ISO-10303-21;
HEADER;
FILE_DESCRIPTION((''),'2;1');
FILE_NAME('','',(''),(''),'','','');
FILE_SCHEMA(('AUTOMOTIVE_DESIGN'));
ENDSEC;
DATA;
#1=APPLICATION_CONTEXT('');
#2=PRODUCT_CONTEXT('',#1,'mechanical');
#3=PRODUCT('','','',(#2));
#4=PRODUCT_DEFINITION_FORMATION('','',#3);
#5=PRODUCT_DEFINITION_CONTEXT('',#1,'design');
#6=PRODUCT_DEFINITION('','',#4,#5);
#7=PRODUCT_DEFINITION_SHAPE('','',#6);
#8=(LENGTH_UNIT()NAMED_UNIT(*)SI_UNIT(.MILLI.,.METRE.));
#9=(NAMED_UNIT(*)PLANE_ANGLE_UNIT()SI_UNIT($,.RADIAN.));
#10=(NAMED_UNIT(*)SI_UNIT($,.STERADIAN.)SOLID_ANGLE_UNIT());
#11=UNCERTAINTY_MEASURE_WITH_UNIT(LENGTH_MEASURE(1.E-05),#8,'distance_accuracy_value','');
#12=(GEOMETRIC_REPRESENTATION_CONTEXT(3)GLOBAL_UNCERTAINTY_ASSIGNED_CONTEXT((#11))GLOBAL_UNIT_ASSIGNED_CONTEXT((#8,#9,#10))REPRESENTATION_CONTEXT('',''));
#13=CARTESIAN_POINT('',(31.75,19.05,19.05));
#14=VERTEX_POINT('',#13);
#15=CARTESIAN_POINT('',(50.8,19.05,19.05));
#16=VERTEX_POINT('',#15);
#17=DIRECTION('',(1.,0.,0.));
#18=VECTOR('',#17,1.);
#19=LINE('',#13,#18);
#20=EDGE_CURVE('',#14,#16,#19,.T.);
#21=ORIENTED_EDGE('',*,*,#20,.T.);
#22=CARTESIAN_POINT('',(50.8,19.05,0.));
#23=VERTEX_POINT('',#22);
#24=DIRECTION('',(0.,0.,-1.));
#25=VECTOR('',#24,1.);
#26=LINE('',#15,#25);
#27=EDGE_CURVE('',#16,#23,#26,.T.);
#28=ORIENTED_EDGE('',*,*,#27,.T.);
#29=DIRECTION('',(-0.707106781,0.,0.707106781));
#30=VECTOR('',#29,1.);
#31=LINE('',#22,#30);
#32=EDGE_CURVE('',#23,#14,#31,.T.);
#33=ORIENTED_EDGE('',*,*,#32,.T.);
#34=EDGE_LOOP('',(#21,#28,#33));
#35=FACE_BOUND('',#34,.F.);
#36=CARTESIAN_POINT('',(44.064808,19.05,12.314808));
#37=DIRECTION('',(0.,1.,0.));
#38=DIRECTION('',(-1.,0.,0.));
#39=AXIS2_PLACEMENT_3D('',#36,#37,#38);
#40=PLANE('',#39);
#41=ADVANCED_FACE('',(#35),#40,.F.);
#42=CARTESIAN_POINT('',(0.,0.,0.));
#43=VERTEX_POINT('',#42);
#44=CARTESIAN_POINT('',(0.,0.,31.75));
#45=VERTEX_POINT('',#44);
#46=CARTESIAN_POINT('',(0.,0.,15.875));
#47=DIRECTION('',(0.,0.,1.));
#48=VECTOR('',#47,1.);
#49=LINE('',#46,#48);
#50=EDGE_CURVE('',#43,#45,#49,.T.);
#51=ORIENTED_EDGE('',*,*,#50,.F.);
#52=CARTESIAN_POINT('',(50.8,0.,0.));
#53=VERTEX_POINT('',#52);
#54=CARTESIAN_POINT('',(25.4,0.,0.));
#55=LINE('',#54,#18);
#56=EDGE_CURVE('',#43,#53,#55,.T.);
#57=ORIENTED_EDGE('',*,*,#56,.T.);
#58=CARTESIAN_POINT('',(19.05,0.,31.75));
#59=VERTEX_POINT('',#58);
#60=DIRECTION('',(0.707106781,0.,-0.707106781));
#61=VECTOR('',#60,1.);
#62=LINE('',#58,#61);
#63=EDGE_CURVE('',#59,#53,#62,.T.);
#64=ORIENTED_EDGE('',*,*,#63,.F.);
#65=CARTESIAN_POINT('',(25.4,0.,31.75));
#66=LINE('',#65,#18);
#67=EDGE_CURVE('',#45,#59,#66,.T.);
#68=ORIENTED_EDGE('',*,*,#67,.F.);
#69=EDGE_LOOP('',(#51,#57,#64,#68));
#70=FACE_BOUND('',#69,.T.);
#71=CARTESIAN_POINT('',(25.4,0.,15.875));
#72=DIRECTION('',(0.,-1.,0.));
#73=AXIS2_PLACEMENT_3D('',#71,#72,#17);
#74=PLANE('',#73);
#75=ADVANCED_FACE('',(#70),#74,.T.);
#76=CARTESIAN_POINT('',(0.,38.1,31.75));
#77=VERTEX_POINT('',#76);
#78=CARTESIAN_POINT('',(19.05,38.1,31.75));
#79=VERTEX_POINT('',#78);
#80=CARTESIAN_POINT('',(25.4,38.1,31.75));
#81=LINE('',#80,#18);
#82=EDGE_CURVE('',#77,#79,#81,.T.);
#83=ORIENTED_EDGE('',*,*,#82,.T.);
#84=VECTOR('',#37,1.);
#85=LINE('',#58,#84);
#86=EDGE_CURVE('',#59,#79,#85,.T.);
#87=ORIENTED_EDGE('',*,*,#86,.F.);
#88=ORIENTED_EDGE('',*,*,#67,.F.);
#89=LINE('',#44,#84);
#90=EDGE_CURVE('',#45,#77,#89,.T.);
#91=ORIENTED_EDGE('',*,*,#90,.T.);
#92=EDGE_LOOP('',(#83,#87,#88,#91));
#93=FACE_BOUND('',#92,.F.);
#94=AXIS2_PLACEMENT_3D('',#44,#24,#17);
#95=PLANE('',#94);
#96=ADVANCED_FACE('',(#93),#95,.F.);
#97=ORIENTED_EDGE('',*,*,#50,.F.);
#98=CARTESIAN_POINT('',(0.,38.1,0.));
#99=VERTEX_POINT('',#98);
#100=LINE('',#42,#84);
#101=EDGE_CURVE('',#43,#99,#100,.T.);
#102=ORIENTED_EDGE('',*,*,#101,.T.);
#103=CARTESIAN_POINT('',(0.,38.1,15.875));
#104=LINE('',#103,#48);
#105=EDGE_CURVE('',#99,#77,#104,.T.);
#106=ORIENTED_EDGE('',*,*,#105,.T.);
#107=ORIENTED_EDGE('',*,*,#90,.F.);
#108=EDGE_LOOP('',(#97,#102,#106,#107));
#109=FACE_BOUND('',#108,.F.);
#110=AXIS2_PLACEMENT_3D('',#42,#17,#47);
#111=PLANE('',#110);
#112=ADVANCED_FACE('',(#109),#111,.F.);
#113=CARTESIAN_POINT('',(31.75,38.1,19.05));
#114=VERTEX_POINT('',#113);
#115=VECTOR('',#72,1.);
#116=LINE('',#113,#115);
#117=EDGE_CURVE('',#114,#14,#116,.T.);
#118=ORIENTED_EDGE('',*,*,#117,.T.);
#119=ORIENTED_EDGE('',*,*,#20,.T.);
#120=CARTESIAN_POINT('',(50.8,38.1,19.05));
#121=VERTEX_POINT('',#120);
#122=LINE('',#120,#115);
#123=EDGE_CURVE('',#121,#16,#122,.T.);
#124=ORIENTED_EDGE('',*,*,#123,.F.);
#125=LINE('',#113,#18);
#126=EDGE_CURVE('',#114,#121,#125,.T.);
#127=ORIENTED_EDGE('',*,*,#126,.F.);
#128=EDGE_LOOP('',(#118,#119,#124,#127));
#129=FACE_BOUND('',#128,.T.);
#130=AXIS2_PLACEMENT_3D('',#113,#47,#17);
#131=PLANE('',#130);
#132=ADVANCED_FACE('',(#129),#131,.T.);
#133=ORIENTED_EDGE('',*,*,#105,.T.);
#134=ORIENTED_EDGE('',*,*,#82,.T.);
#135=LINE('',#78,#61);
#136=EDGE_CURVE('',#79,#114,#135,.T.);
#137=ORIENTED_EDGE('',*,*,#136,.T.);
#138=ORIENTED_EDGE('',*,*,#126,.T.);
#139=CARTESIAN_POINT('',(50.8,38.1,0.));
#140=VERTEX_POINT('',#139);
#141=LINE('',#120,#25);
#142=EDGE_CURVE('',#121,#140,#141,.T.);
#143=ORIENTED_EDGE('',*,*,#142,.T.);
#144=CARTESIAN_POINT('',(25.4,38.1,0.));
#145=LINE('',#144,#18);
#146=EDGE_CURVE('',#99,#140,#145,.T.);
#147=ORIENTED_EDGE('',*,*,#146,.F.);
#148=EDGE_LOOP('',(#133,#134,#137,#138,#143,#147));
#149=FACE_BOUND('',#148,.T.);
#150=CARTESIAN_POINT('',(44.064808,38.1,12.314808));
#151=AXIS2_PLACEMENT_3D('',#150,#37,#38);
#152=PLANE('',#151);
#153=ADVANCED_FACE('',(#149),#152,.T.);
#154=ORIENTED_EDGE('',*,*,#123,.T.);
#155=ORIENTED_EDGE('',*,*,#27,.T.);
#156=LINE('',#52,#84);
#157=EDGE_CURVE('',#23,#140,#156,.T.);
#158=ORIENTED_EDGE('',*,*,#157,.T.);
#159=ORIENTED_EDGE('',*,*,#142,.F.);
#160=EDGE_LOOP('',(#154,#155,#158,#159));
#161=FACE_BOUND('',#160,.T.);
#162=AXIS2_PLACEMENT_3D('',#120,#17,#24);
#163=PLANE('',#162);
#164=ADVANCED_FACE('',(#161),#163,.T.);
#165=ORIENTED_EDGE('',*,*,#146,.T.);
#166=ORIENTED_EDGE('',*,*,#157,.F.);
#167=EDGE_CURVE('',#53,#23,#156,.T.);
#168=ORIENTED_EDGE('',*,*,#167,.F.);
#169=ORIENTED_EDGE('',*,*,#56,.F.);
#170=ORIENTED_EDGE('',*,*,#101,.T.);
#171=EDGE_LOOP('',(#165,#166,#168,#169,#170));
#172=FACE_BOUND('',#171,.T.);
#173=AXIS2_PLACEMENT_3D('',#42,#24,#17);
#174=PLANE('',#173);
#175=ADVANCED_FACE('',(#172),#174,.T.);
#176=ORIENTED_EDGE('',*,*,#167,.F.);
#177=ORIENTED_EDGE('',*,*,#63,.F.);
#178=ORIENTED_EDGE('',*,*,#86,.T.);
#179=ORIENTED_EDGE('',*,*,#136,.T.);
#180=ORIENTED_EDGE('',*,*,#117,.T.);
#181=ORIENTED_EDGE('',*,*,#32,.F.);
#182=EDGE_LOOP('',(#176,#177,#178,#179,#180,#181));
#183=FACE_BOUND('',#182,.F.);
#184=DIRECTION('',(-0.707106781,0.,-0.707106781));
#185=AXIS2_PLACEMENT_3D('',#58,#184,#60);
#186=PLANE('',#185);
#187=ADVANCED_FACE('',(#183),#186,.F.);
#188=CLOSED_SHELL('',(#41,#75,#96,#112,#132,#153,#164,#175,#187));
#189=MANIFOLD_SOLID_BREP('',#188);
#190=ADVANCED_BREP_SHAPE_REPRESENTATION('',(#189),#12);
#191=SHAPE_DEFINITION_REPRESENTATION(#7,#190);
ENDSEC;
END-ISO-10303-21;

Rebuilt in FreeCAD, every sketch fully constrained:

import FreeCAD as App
import Part
import Sketcher
Q = App.Units.Quantity

doc = App.newDocument("Part")
params = doc.addObject("Spreadsheet::Sheet", "Params")
for row, (alias, value) in enumerate([
    ("sketch1_width", "2 in"),
    ("sketch1_height", "1.25 in"),
    ("pad1_length", "1.5 in"),
    ("sketch2_width", "1.25 in"),
    ("pocket1_length", "1.5 in"),
    ("sketch3_width", "0.75 in"),
    ("pad2_length", "0.75 in"),
], start=1):
    params.set(f"A{row}", alias)
    params.set(f"B{row}", "=" + value)
    params.setAlias(f"B{row}", alias)

body = doc.addObject("PartDesign::Body", "Body")

sketch1 = body.newObject("Sketcher::SketchObject", "Sketch")
sketch1.AttachmentSupport = (doc.getObject("XZ_Plane"), [""])
sketch1.MapMode = "FlatFace"
sketch1.addGeometry([
    Part.LineSegment(App.Vector(0, 32, 0), App.Vector(0, 0, 0)),
    Part.LineSegment(App.Vector(0, 0, 0), App.Vector(51, 0, 0)),
    Part.LineSegment(App.Vector(51, 0, 0), App.Vector(51, 32, 0)),
    Part.LineSegment(App.Vector(51, 32, 0), App.Vector(0, 32, 0)),
], False)
sketch1.addConstraint([
    Sketcher.Constraint("Coincident", 0, 2, 1, 1),
    Sketcher.Constraint("Coincident", 1, 2, 2, 1),
    Sketcher.Constraint("Coincident", 2, 2, 3, 1),
    Sketcher.Constraint("Coincident", 3, 2, 0, 1),
    Sketcher.Constraint("Vertical", 0),
    Sketcher.Constraint("Horizontal", 1),
    Sketcher.Constraint("Vertical", 2),
    Sketcher.Constraint("Horizontal", 3),
    Sketcher.Constraint("Coincident", 0, 2, -1, 1),
    Sketcher.Constraint("DistanceX", 1, 1, 1, 2, Q("2 in")),
    Sketcher.Constraint("DistanceY", 0, 2, 0, 1, Q("1.25 in")),
])
sketch1.setExpression("Constraints[9]", "Params.sketch1_width")
sketch1.setExpression("Constraints[10]", "Params.sketch1_height")
pad1 = body.newObject("PartDesign::Pad", "Pad")
pad1.Profile = sketch1
pad1.setExpression("Length", "Params.pad1_length")
pad1.Reversed = True

sketch2 = body.newObject("Sketcher::SketchObject", "Sketch001")
sketch2.AttachmentSupport = (doc.getObject("XZ_Plane"), [""])
sketch2.MapMode = "FlatFace"
sketch2.addGeometry([
    Part.LineSegment(App.Vector(19, 32, 0), App.Vector(51, 0, 0)),
    Part.LineSegment(App.Vector(51, 0, 0), App.Vector(51, 32, 0)),
    Part.LineSegment(App.Vector(51, 32, 0), App.Vector(19, 32, 0)),
], False)
sketch2.addConstraint([
    Sketcher.Constraint("Coincident", 0, 2, 1, 1),
    Sketcher.Constraint("Coincident", 1, 2, 2, 1),
    Sketcher.Constraint("Coincident", 2, 2, 0, 1),
    Sketcher.Constraint("Vertical", 1),
    Sketcher.Constraint("Horizontal", 2),
    Sketcher.Constraint("PointOnObject", 0, 2, -1),
    Sketcher.Constraint("Equal", 2, 1),
    Sketcher.Constraint("DistanceX", -1, 1, 0, 2, Q("2 in")),
    Sketcher.Constraint("DistanceX", 2, 2, 2, 1, Q("1.25 in")),
])
sketch2.setExpression("Constraints[8]", "Params.sketch2_width")
pocket1 = body.newObject("PartDesign::Pocket", "Pocket")
pocket1.Profile = sketch2
pocket1.setExpression("Length", "Params.pocket1_length")

sketch3 = body.newObject("Sketcher::SketchObject", "Sketch002")
sketch3.AttachmentSupport = (doc.getObject("XZ_Plane"), [""])
sketch3.MapMode = "FlatFace"
sketch3.AttachmentOffset = App.Placement(App.Vector(0, 0, -1.5 * 25.4), App.Rotation())
sketch3.addGeometry([
    Part.LineSegment(App.Vector(51, 19, 0), App.Vector(51, 0, 0)),
    Part.LineSegment(App.Vector(51, 0, 0), App.Vector(32, 19, 0)),
    Part.LineSegment(App.Vector(32, 19, 0), App.Vector(51, 19, 0)),
], False)
sketch3.addConstraint([
    Sketcher.Constraint("Coincident", 0, 2, 1, 1),
    Sketcher.Constraint("Coincident", 1, 2, 2, 1),
    Sketcher.Constraint("Coincident", 2, 2, 0, 1),
    Sketcher.Constraint("Vertical", 0),
    Sketcher.Constraint("Horizontal", 2),
    Sketcher.Constraint("PointOnObject", 0, 2, -1),
    Sketcher.Constraint("Equal", 2, 0),
    Sketcher.Constraint("DistanceX", -1, 1, 0, 2, Q("2 in")),
    Sketcher.Constraint("DistanceX", 2, 1, 2, 2, Q("0.75 in")),
])
sketch3.setExpression("Constraints[8]", "Params.sketch3_width")
pad2 = body.newObject("PartDesign::Pad", "Pad001")
pad2.Profile = sketch3
pad2.setExpression("Length", "Params.pad2_length")

doc.recompute()
